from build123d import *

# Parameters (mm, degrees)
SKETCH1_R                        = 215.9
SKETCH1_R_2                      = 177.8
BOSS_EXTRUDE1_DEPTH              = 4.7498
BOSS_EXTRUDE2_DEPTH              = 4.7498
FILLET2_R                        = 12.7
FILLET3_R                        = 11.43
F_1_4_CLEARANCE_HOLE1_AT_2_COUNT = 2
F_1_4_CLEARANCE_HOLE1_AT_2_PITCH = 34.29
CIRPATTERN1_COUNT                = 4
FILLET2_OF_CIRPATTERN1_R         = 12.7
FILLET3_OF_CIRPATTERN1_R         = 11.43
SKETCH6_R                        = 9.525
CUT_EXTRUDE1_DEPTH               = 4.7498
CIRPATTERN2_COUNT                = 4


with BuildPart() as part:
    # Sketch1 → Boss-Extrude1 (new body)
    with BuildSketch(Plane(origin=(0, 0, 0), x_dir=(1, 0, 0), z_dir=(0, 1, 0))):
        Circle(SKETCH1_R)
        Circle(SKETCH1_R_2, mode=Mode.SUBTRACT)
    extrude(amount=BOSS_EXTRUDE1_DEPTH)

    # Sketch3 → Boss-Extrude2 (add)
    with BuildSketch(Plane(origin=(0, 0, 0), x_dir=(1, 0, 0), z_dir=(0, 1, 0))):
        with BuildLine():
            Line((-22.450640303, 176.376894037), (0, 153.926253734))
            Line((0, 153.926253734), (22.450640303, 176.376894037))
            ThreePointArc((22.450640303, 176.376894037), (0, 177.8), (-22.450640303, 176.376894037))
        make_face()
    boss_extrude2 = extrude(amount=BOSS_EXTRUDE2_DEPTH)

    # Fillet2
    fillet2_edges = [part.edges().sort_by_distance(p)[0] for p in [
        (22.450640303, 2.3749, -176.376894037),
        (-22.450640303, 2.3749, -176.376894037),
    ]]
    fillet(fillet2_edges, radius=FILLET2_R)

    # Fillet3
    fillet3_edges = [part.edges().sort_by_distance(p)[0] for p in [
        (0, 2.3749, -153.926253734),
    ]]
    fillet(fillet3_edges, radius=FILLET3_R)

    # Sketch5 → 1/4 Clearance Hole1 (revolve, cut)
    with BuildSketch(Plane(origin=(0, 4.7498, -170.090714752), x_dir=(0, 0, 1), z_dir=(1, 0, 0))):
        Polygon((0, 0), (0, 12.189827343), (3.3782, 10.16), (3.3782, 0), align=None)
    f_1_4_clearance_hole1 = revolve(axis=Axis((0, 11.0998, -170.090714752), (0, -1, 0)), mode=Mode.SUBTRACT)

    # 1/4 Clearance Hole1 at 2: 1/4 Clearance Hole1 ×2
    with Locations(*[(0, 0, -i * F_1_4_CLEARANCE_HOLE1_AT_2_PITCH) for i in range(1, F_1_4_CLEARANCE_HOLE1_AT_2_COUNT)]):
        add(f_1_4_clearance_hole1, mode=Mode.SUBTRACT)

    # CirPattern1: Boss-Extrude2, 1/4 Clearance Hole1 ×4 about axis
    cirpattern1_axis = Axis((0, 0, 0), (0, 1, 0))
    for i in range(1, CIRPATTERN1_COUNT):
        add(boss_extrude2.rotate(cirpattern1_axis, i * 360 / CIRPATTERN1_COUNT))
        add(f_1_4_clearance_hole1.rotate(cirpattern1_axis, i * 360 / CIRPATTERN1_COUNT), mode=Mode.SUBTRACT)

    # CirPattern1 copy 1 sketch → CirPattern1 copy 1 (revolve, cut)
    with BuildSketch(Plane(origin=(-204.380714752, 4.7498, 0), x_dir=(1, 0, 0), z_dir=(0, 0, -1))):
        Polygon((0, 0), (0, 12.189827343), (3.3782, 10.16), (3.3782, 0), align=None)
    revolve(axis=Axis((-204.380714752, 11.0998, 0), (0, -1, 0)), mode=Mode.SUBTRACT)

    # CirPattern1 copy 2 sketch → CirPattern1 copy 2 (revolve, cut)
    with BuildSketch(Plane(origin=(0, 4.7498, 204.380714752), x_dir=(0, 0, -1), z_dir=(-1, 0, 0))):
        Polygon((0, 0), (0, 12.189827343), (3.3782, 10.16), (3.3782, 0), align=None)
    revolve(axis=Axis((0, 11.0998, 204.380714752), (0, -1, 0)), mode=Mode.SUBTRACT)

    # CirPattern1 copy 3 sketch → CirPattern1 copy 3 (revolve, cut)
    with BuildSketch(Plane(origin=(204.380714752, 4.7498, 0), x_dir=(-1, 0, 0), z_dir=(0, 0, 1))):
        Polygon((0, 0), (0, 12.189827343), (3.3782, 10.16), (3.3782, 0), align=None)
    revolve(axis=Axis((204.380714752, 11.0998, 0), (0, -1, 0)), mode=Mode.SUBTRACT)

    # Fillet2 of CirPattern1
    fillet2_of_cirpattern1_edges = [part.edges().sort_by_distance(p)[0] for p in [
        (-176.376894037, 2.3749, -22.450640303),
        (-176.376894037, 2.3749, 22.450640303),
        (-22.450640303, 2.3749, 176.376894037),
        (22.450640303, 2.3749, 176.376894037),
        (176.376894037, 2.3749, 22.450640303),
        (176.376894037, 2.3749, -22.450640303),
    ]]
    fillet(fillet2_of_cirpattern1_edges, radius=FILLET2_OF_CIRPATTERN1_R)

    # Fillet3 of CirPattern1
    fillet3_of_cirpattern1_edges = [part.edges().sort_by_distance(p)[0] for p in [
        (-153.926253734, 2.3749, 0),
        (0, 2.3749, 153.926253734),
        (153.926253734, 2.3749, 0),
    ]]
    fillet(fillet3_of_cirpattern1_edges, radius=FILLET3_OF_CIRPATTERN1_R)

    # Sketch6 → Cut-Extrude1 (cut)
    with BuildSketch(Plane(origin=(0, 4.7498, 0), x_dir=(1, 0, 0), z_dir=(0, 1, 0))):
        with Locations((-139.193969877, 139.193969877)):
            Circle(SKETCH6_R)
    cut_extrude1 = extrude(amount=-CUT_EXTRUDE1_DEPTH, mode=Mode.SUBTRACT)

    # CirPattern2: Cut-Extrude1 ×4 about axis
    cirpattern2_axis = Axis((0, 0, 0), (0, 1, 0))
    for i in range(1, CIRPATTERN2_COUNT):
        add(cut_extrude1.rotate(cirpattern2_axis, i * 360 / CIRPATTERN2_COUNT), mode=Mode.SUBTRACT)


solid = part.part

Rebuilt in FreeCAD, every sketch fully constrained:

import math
import FreeCAD as App
import Part
import Sketcher
from FreeCAD import Vector
Q = App.Units.Quantity


def edges_at(feature, points):
    """Names of the edges that pass closest to the given points."""
    edges = feature.Shape.Edges
    near = lambda p: min(range(len(edges)), key=lambda i: edges[i].distToShape(Part.Vertex(*p))[0])
    return sorted({f"Edge{near(p) + 1}" for p in points})


def add_polygon(sketch, points):
    """Adds a closed chain of lines whose ends are joined by coincident constraints."""
    first, n = sketch.GeometryCount, len(points)
    for a, b in zip(points, points[1:] + points[:1]):
        sketch.addGeometry(Part.LineSegment(App.Vector(*a, 0), App.Vector(*b, 0)), False)
    for i in range(n):
        sketch.addConstraint(Sketcher.Constraint("Coincident", first + i, 2, first + (i + 1) % n, 1))

doc = App.newDocument("Part")
params = doc.addObject("Spreadsheet::Sheet", "Params")
for row, (alias, value) in enumerate([
    ("sketch1_diameter", "17 in"),
    ("sketch1_diameter2", "14 in"),
    ("pad1_length", "0.187 in"),
    ("sketch2_radius", "7 in"),
    ("sketch2_length", "1.25 in"),
    ("pad2_length", "0.187 in"),
    ("fillet_radius", "0.5 in"),
    ("fillet2_radius", "0.45 in"),
    ("sketch3_width", "0.4 in"),
    ("sketch3_height", "0.133 in"),
    ("groove_angle", "360 deg"),
    ("linearpattern_pitch", "1.35 in"),
    ("sketch4_height", "0.4 in"),
    ("sketch4_width", "0.133 in"),
    ("groove2_angle", "360 deg"),
    ("sketch5_width", "0.4 in"),
    ("sketch5_height", "0.133 in"),
    ("groove3_angle", "360 deg"),
    ("sketch6_height", "0.4 in"),
    ("sketch6_width", "0.133 in"),
    ("groove4_angle", "360 deg"),
    ("fillet3_radius", "0.5 in"),
    ("fillet4_radius", "0.45 in"),
    ("sketch7_diameter", "0.75 in"),
    ("pocket1_length", "0.187 in"),
], start=1):
    params.set(f"A{row}", alias)
    params.set(f"B{row}", "=" + value)
    params.setAlias(f"B{row}", alias)

body = doc.addObject("PartDesign::Body", "Body")

sketch1 = body.newObject("Sketcher::SketchObject", "Sketch")
sketch1.AttachmentSupport = (doc.getObject("XZ_Plane"), [""])
sketch1.MapMode = "FlatFace"
sketch1.addGeometry(Part.Circle(Vector(0, 0, 0), Vector(0, 0, 1), 215.9), False)
sketch1.addGeometry(Part.Circle(Vector(0, 0, 0), Vector(0, 0, 1), 177.8), False)
sketch1.addConstraint(Sketcher.Constraint("Coincident", 0, 3, -1, 1))
sketch1.addConstraint(Sketcher.Constraint("Coincident", 1, 3, -1, 1))
sketch1.addConstraint(Sketcher.Constraint("Diameter", 0, Q("17 in")))
sketch1.addConstraint(Sketcher.Constraint("Diameter", 1, Q("14 in")))
sketch1.setExpression("Constraints[2]", "Params.sketch1_diameter")
sketch1.setExpression("Constraints[3]", "Params.sketch1_diameter2")
pad1 = body.newObject("PartDesign::Pad", "Pad")
pad1.Profile = sketch1
pad1.setExpression("Length", "Params.pad1_length")
pad1.Reversed = True

sketch2 = body.newObject("Sketcher::SketchObject", "Sketch001")
sketch2.AttachmentSupport = (doc.getObject("XZ_Plane"), [""])
sketch2.MapMode = "FlatFace"
sketch2.addGeometry(Part.LineSegment(Vector(-22.45064, -176.376894, 0), Vector(0, -153.926254, 0)), False)
sketch2.addGeometry(Part.LineSegment(Vector(0, -153.926254, 0), Vector(22.45064, -176.376894, 0)), False)
sketch2.addGeometry(Part.ArcOfCircle(Part.Circle(Vector(0, 0, 0), Vector(0, 0, 1), 177.8), math.radians(-97.254049), math.radians(-82.745951)), False)
sketch2.addConstraint(Sketcher.Constraint("Coincident", 0, 2, 1, 1))
sketch2.addConstraint(Sketcher.Constraint("Coincident", 1, 2, 2, 2))
sketch2.addConstraint(Sketcher.Constraint("Coincident", 2, 1, 0, 1))
sketch2.addConstraint(Sketcher.Constraint("Coincident", 2, 3, -1, 1))
sketch2.addConstraint(Sketcher.Constraint("PointOnObject", 0, 2, -2))
sketch2.addConstraint(Sketcher.Constraint("Perpendicular", 0, 1))
sketch2.addConstraint(Sketcher.Constraint("Horizontal", 1, 2, 2, 1))
sketch2.addConstraint(Sketcher.Constraint("Radius", 2, Q("7 in")))
sketch2.addConstraint(Sketcher.Constraint("Distance", 0, Q("1.25 in")))
sketch2.setExpression("Constraints[7]", "Params.sketch2_radius")
sketch2.setExpression("Constraints[8]", "Params.sketch2_length")
pad2 = body.newObject("PartDesign::Pad", "Pad001")
pad2.Profile = sketch2
pad2.setExpression("Length", "Params.pad2_length")
pad2.Reversed = True
doc.recompute()

fillet = body.newObject("PartDesign::Fillet", "Fillet")
fillet.Base = (pad2, edges_at(pad2, [(22.451, 2.375, -176.377), (-22.451, 2.375, -176.377)]))
fillet.setExpression("Radius", "Params.fillet_radius")
doc.recompute()

fillet2 = body.newObject("PartDesign::Fillet", "Fillet001")
fillet2.Base = (fillet, edges_at(fillet, [(0, 2.375, -153.926)]))
fillet2.setExpression("Radius", "Params.fillet2_radius")

sketch3 = body.newObject("Sketcher::SketchObject", "Sketch002")
sketch3.AttachmentSupport = (doc.getObject("YZ_Plane"), [""])
sketch3.MapMode = "FlatFace"
add_polygon(sketch3, [(-7.440027, -170.090715), (4.7498, -170.090715), (4.7498, -166.712515), (-5.4102, -166.712515)])
sketch3.addGeometry(Part.LineSegment(Vector(4.7498, -170.090715, 0), Vector(-7.440027, -170.090715, 0)), True)
sketch3.addConstraint(Sketcher.Constraint("Horizontal", 0))
sketch3.addConstraint(Sketcher.Constraint("Vertical", 1))
sketch3.addConstraint(Sketcher.Constraint("Horizontal", 2))
sketch3.addConstraint(Sketcher.Constraint("Horizontal", 4))
sketch3.addConstraint(Sketcher.Constraint("Coincident", 4, 1, 0, 2))
sketch3.addConstraint(Sketcher.Constraint("Equal", 0, 4))
sketch3.addConstraint(Sketcher.Constraint("DistanceX", 2, 2, 2, 1, Q("0.4 in")))
sketch3.addConstraint(Sketcher.Constraint("Angle", 3, Q("-121 deg")))
sketch3.addConstraint(Sketcher.Constraint("DistanceY", 1, 1, 1, 2, Q("0.133 in")))
sketch3.addConstraint(Sketcher.Constraint("DistanceX", -1, 1, 0, 2, Q("0.187 in")))
sketch3.addConstraint(Sketcher.Constraint("DistanceY", 0, 2, -1, 1, Q("170.090715 mm")))
sketch3.setExpression("Constraints[10]", "Params.sketch3_width")
sketch3.setExpression("Constraints[12]", "Params.sketch3_height")
groove = body.newObject("PartDesign::Groove", "Groove")
groove.Profile = sketch3
groove.ReferenceAxis = (sketch3, ["Axis0"])
groove.setExpression("Angle", "Params.groove_angle")
doc.recompute()

linearpattern = body.newObject("PartDesign::LinearPattern", "LinearPattern")
linearpattern.Originals = [groove]
linearpattern.Direction = (doc.getObject("Z_Axis"), [""])
linearpattern.Mode = "offset"
linearpattern.setExpression("Offset", "Params.linearpattern_pitch")
linearpattern.Occurrences = 2
linearpattern.Reversed = True
body.Tip = linearpattern
doc.recompute()

polarpattern = body.newObject("PartDesign::PolarPattern", "PolarPattern")
polarpattern.Originals = [pad2, groove]
polarpattern.Axis = (doc.getObject("Y_Axis"), [""])
polarpattern.Angle = 360
polarpattern.Occurrences = 4
body.Tip = polarpattern

sketch4 = body.newObject("Sketcher::SketchObject", "Sketch003")
sketch4.AttachmentSupport = (doc.getObject("XY_Plane"), [""])
sketch4.MapMode = "FlatFace"
add_polygon(sketch4, [(-204.380715, -7.440027), (-204.380715, 4.7498), (-201.002515, 4.7498), (-201.002515, -5.4102)])
sketch4.addGeometry(Part.LineSegment(Vector(-204.380715, 4.7498, 0), Vector(-204.380715, -7.440027, 0)), True)
sketch4.addConstraint(Sketcher.Constraint("Vertical", 0))
sketch4.addConstraint(Sketcher.Constraint("Horizontal", 1))
sketch4.addConstraint(Sketcher.Constraint("Vertical", 2))
sketch4.addConstraint(Sketcher.Constraint("Vertical", 4))
sketch4.addConstraint(Sketcher.Constraint("Coincident", 4, 1, 0, 2))
sketch4.addConstraint(Sketcher.Constraint("Equal", 0, 4))
sketch4.addConstraint(Sketcher.Constraint("DistanceY", 2, 2, 2, 1, Q("0.4 in")))
sketch4.addConstraint(Sketcher.Constraint("Angle", 3, Q("-149 deg")))
sketch4.addConstraint(Sketcher.Constraint("DistanceX", 1, 1, 1, 2, Q("0.133 in")))
sketch4.addConstraint(Sketcher.Constraint("DistanceY", -1, 1, 0, 2, Q("0.187 in")))
sketch4.addConstraint(Sketcher.Constraint("DistanceX", 0, 2, -1, 1, Q("204.380715 mm")))
sketch4.setExpression("Constraints[10]", "Params.sketch4_height")
sketch4.setExpression("Constraints[12]", "Params.sketch4_width")
groove2 = body.newObject("PartDesign::Groove", "Groove001")
groove2.Profile = sketch4
groove2.ReferenceAxis = (sketch4, ["Axis0"])
groove2.setExpression("Angle", "Params.groove2_angle")

sketch5 = body.newObject("Sketcher::SketchObject", "Sketch004")
sketch5.AttachmentSupport = (doc.getObject("YZ_Plane"), [""])
sketch5.MapMode = "FlatFace"
add_polygon(sketch5, [(-7.440027, 204.380715), (4.7498, 204.380715), (4.7498, 201.002515), (-5.4102, 201.002515)])
sketch5.addGeometry(Part.LineSegment(Vector(4.7498, 204.380715, 0), Vector(-7.440027, 204.380715, 0)), True)
sketch5.addConstraint(Sketcher.Constraint("Horizontal", 0))
sketch5.addConstraint(Sketcher.Constraint("Vertical", 1))
sketch5.addConstraint(Sketcher.Constraint("Horizontal", 2))
sketch5.addConstraint(Sketcher.Constraint("Horizontal", 4))
sketch5.addConstraint(Sketcher.Constraint("Coincident", 4, 1, 0, 2))
sketch5.addConstraint(Sketcher.Constraint("Equal", 0, 4))
sketch5.addConstraint(Sketcher.Constraint("DistanceX", 2, 2, 2, 1, Q("0.4 in")))
sketch5.addConstraint(Sketcher.Constraint("Angle", 3, Q("121 deg")))
sketch5.addConstraint(Sketcher.Constraint("DistanceY", 1, 2, 1, 1, Q("0.133 in")))
sketch5.addConstraint(Sketcher.Constraint("DistanceX", -1, 1, 0, 2, Q("0.187 in")))
sketch5.addConstraint(Sketcher.Constraint("DistanceY", -1, 1, 0, 2, Q("204.380715 mm")))
sketch5.setExpression("Constraints[10]", "Params.sketch5_width")
sketch5.setExpression("Constraints[12]", "Params.sketch5_height")
groove3 = body.newObject("PartDesign::Groove", "Groove002")
groove3.Profile = sketch5
groove3.ReferenceAxis = (sketch5, ["Axis0"])
groove3.setExpression("Angle", "Params.groove3_angle")

sketch6 = body.newObject("Sketcher::SketchObject", "Sketch005")
sketch6.AttachmentSupport = (doc.getObject("XY_Plane"), [""])
sketch6.MapMode = "FlatFace"
add_polygon(sketch6, [(204.380715, -7.440027), (204.380715, 4.7498), (201.002515, 4.7498), (201.002515, -5.4102)])
sketch6.addGeometry(Part.LineSegment(Vector(204.380715, 4.7498, 0), Vector(204.380715, -7.440027, 0)), True)
sketch6.addConstraint(Sketcher.Constraint("Vertical", 0))
sketch6.addConstraint(Sketcher.Constraint("Horizontal", 1))
sketch6.addConstraint(Sketcher.Constraint("Vertical", 2))
sketch6.addConstraint(Sketcher.Constraint("Vertical", 4))
sketch6.addConstraint(Sketcher.Constraint("Coincident", 4, 1, 0, 2))
sketch6.addConstraint(Sketcher.Constraint("Equal", 0, 4))
sketch6.addConstraint(Sketcher.Constraint("DistanceY", 2, 2, 2, 1, Q("0.4 in")))
sketch6.addConstraint(Sketcher.Constraint("Angle", 3, Q("-31 deg")))
sketch6.addConstraint(Sketcher.Constraint("DistanceX", 1, 2, 1, 1, Q("0.133 in")))
sketch6.addConstraint(Sketcher.Constraint("DistanceY", -1, 1, 0, 2, Q("0.187 in")))
sketch6.addConstraint(Sketcher.Constraint("DistanceX", -1, 1, 0, 2, Q("204.380715 mm")))
sketch6.setExpression("Constraints[10]", "Params.sketch6_height")
sketch6.setExpression("Constraints[12]", "Params.sketch6_width")
groove4 = body.newObject("PartDesign::Groove", "Groove003")
groove4.Profile = sketch6
groove4.ReferenceAxis = (sketch6, ["Axis0"])
groove4.setExpression("Angle", "Params.groove4_angle")
doc.recompute()

fillet3 = body.newObject("PartDesign::Fillet", "Fillet002")
fillet3.Base = (groove4, edges_at(groove4, [
    (-176.377, 2.375, -22.451),
    (-176.377, 2.375, 22.451),
    (-22.451, 2.375, 176.377),
    (22.451, 2.375, 176.377),
    (176.377, 2.375, 22.451),
    (176.377, 2.375, -22.451),
]))
fillet3.setExpression("Radius", "Params.fillet3_radius")
doc.recompute()

fillet4 = body.newObject("PartDesign::Fillet", "Fillet003")
fillet4.Base = (fillet3, edges_at(fillet3, [(-153.926, 2.375, 0), (0, 2.375, 153.926), (153.926, 2.375, 0)]))
fillet4.setExpression("Radius", "Params.fillet4_radius")

sketch7 = body.newObject("Sketcher::SketchObject", "Sketch006")
sketch7.AttachmentSupport = (doc.getObject("XZ_Plane"), [""])
sketch7.MapMode = "FlatFace"
sketch7.AttachmentOffset = App.Placement(Vector(0, 0, -0.187 * 25.4), App.Rotation())
sketch7.addGeometry(Part.Circle(Vector(-139.19397, -139.19397, 0), Vector(0, 0, 1), 9.525), False)
sketch7.addConstraint(Sketcher.Constraint("Diameter", 0, Q("0.75 in")))
sketch7.addConstraint(Sketcher.Constraint("DistanceX", 0, 3, -1, 1, Q("139.19397 mm")))
sketch7.addConstraint(Sketcher.Constraint("DistanceY", 0, 3, -1, 1, Q("139.19397 mm")))
sketch7.setExpression("Constraints[0]", "Params.sketch7_diameter")
pocket1 = body.newObject("PartDesign::Pocket", "Pocket")
pocket1.Profile = sketch7
pocket1.setExpression("Length", "Params.pocket1_length")
pocket1.Reversed = True
doc.recompute()

polarpattern2 = body.newObject("PartDesign::PolarPattern", "PolarPattern001")
polarpattern2.Originals = [pocket1]
polarpattern2.Axis = (doc.getObject("Y_Axis"), [""])
polarpattern2.Angle = 360
polarpattern2.Occurrences = 4
body.Tip = polarpattern2

doc.recompute()
